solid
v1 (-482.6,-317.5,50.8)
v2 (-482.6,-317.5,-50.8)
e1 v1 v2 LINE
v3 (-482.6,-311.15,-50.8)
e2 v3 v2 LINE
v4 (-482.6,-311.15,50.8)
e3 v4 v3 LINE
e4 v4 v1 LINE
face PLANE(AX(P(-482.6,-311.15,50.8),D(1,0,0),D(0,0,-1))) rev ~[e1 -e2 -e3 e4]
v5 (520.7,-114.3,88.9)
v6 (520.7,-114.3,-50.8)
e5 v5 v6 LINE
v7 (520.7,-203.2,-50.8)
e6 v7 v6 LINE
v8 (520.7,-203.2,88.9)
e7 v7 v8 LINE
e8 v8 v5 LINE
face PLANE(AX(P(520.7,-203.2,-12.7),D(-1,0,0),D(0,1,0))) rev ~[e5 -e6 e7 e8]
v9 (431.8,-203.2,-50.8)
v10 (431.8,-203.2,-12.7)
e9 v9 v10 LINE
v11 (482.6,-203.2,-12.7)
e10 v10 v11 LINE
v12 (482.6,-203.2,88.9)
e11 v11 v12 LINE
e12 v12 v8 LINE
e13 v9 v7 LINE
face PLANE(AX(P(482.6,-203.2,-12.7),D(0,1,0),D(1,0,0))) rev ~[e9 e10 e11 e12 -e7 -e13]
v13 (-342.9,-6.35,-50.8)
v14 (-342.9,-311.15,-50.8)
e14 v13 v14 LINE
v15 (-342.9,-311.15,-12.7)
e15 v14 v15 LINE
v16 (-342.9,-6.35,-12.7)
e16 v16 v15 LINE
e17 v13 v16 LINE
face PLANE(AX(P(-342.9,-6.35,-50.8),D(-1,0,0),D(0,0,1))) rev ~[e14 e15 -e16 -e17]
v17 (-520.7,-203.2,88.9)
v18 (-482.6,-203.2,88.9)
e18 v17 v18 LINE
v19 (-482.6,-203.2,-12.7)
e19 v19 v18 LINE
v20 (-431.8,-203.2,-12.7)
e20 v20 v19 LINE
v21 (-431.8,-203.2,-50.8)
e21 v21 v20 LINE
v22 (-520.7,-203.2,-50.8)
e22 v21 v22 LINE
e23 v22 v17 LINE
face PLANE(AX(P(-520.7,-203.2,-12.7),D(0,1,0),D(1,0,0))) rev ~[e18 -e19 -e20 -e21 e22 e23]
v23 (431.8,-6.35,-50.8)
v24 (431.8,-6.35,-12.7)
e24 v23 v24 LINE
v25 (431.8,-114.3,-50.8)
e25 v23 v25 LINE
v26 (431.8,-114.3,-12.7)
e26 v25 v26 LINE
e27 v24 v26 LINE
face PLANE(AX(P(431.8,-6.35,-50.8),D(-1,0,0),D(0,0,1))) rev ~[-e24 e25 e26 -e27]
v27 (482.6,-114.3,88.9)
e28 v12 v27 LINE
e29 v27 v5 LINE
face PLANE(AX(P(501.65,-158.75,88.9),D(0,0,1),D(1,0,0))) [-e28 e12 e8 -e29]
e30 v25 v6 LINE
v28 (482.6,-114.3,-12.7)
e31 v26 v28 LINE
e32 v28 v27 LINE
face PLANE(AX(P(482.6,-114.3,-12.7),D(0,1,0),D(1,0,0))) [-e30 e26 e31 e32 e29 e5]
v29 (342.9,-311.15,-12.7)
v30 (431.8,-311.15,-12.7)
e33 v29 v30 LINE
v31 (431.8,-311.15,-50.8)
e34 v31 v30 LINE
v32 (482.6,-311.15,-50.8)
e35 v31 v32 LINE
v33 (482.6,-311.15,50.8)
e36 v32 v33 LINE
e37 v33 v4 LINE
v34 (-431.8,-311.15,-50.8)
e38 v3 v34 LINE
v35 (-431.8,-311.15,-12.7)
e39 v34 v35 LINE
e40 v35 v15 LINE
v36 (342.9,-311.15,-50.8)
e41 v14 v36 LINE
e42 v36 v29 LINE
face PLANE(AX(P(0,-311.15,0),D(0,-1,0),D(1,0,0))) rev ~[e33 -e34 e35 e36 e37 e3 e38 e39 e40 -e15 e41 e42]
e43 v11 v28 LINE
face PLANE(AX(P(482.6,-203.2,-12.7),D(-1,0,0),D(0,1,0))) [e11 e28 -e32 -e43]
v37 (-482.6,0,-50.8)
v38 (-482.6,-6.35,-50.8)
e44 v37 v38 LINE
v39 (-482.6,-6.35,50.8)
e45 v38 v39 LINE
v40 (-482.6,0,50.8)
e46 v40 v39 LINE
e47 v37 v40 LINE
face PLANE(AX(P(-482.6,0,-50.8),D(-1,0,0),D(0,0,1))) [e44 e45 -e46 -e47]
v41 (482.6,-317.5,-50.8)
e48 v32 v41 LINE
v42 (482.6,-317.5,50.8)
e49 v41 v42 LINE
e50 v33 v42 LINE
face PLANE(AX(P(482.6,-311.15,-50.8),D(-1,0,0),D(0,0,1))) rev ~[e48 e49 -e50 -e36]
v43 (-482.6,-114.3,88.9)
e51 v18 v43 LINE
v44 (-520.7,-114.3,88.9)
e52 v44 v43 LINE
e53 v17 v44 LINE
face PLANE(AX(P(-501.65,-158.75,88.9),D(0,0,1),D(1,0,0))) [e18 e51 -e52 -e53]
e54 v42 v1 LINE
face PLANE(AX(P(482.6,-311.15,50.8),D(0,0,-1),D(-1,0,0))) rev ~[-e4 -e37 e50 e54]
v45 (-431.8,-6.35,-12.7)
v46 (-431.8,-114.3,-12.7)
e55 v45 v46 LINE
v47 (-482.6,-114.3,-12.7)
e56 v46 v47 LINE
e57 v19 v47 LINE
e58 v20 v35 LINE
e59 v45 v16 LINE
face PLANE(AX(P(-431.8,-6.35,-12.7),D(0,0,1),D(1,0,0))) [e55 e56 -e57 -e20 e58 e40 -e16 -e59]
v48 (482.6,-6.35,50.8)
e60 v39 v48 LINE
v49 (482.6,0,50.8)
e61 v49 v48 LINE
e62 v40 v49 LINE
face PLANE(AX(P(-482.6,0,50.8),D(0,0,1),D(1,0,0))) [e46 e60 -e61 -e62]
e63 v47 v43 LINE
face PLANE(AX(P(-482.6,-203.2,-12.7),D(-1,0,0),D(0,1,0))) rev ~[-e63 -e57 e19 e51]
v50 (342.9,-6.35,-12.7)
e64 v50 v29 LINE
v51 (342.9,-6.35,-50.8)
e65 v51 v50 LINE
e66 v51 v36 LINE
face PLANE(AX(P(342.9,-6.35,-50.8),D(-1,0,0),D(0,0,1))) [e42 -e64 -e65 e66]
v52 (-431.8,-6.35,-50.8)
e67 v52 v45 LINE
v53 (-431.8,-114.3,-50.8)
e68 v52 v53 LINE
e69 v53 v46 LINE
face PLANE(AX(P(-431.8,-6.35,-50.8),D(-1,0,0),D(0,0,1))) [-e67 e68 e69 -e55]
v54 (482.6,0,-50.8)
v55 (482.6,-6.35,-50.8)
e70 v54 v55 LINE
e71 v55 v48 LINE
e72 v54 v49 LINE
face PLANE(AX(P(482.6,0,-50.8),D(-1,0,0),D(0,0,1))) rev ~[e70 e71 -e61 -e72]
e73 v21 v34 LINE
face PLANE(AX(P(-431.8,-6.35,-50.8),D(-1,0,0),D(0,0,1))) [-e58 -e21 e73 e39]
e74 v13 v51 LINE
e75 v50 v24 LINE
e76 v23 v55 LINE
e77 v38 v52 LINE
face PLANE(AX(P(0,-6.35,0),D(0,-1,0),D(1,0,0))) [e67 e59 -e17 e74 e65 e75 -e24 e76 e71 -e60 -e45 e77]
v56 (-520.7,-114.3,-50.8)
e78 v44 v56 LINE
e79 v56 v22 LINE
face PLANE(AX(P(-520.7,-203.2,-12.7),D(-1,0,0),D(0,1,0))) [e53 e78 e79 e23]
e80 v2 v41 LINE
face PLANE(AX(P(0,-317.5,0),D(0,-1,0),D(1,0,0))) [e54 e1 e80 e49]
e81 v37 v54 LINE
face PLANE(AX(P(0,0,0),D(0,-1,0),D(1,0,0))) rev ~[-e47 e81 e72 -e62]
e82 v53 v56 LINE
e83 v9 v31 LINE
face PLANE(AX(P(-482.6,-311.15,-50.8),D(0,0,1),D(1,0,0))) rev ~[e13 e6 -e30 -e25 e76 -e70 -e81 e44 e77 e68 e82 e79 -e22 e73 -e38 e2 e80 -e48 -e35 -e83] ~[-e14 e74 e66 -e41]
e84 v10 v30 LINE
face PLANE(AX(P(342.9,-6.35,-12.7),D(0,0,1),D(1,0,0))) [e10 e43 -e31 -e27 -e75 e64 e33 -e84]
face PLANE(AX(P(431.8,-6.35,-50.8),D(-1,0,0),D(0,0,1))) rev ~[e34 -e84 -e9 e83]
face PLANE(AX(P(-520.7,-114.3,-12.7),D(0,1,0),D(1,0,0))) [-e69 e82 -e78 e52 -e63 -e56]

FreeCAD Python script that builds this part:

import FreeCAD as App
import Part
import Sketcher

V = App.Vector
Q = App.Units.Quantity

doc = App.newDocument("Part")
body = doc.addObject("PartDesign::Body", "Body")

# Sketch on XZ plane
sketch1 = body.newObject("Sketcher::SketchObject", "Sketch")
sketch1.AttachmentSupport = (doc.getObject("XZ_Plane"), [""])
sketch1.MapMode = "FlatFace"
sketch1.addGeometry([
    Part.LineSegment(V(-482.6, 50.8, 0), V(-482.6, -50.8, 0)),
    Part.LineSegment(V(-482.6, -50.8, 0), V(482.6, -50.8, 0)),
    Part.LineSegment(V(482.6, -50.8, 0), V(482.6, 50.8, 0)),
    Part.LineSegment(V(482.6, 50.8, 0), V(-482.6, 50.8, 0)),
], False)
sketch1.addConstraint([
    Sketcher.Constraint("Coincident", 0, 2, 1, 1),
    Sketcher.Constraint("Coincident", 1, 2, 2, 1),
    Sketcher.Constraint("Coincident", 2, 2, 3, 1),
    Sketcher.Constraint("Coincident", 3, 2, 0, 1),
    Sketcher.Constraint("Vertical", 0),
    Sketcher.Constraint("Horizontal", 1),
    Sketcher.Constraint("Vertical", 2),
    Sketcher.Constraint("Horizontal", 3),
    Sketcher.Constraint("Symmetric", 0, 2, 2, 2, -1, 1),
    Sketcher.Constraint("DistanceX", 1, 1, 1, 2, Q("38 in")),
    Sketcher.Constraint("DistanceY", 0, 2, 0, 1, Q("4 in")),
])
pad1 = body.newObject("PartDesign::Pad", "Pad")
pad1.Profile = sketch1
pad1.Length = Q("0.25 in")

# Sketch on XZ plane
sketch2 = body.newObject("Sketcher::SketchObject", "Sketch001")
sketch2.AttachmentSupport = (doc.getObject("XZ_Plane"), [""])
sketch2.MapMode = "FlatFace"
sketch2.AttachmentOffset = App.Placement(V(0, 0, 0.25 * 25.4), App.Rotation())
sketch2.addGeometry([
    Part.LineSegment(V(-431.8, -12.7, 0), V(-431.8, -50.8, 0)),  # 0
    Part.LineSegment(V(-431.8, -50.8, 0), V(-342.9, -50.8, 0)),  # 1
    Part.LineSegment(V(-342.9, -50.8, 0), V(-342.9, -12.7, 0)),  # 2
    Part.LineSegment(V(-342.9, -12.7, 0), V(-431.8, -12.7, 0)),  # 3
    Part.LineSegment(V(342.9, -12.7, 0), V(342.9, -50.8, 0)),  # 4
    Part.LineSegment(V(342.9, -50.8, 0), V(431.8, -50.8, 0)),  # 5
    Part.LineSegment(V(431.8, -50.8, 0), V(431.8, -12.7, 0)),  # 6
    Part.LineSegment(V(431.8, -12.7, 0), V(342.9, -12.7, 0)),  # 7
], False)
sketch2.addConstraint([
    Sketcher.Constraint("Coincident", 0, 2, 1, 1),
    Sketcher.Constraint("Coincident", 1, 2, 2, 1),
    Sketcher.Constraint("Coincident", 2, 2, 3, 1),
    Sketcher.Constraint("Coincident", 3, 2, 0, 1),
    Sketcher.Constraint("Coincident", 4, 2, 5, 1),
    Sketcher.Constraint("Coincident", 5, 2, 6, 1),
    Sketcher.Constraint("Coincident", 6, 2, 7, 1),
    Sketcher.Constraint("Coincident", 7, 2, 4, 1),
    Sketcher.Constraint("Vertical", 0),
    Sketcher.Constraint("Horizontal", 1),
    Sketcher.Constraint("Vertical", 2),
    Sketcher.Constraint("Horizontal", 3),
    Sketcher.Constraint("Vertical", 4),
    Sketcher.Constraint("Horizontal", 5),
    Sketcher.Constraint("Vertical", 6),
    Sketcher.Constraint("Horizontal", 7),
    Sketcher.Constraint("Symmetric", 1, 2, 4, 2, -2),
    Sketcher.Constraint("Symmetric", 3, 2, 6, 2, -2),
    Sketcher.Constraint("DistanceX", 1, 1, 1, 2, Q("3.5 in")),
    Sketcher.Constraint("DistanceY", 0, 2, 0, 1, Q("1.5 in")),
    Sketcher.Constraint("DistanceX", 0, 2, -1, 1, Q("17 in")),
    Sketcher.Constraint("DistanceY", 0, 2, -1, 1, Q("2 in")),
])
pad2 = body.newObject("PartDesign::Pad", "Pad001")
pad2.Profile = sketch2
pad2.Length = Q("12 in")

# Sketch on YZ plane
sketch3 = body.newObject("Sketcher::SketchObject", "Sketch002")
sketch3.AttachmentSupport = (doc.getObject("YZ_Plane"), [""])
sketch3.MapMode = "FlatFace"
sketch3.AttachmentOffset = App.Placement(V(0, 0, -17 * 25.4), App.Rotation())
sketch3.addGeometry([
    Part.LineSegment(V(-114.3, -12.7, 0), V(-114.3, -50.8, 0)),
    Part.LineSegment(V(-114.3, -50.8, 0), V(-203.2, -50.8, 0)),
    Part.LineSegment(V(-203.2, -50.8, 0), V(-203.2, -12.7, 0)),
    Part.LineSegment(V(-203.2, -12.7, 0), V(-114.3, -12.7, 0)),
], False)
sketch3.addConstraint([
    Sketcher.Constraint("Coincident", 0, 2, 1, 1),
    Sketcher.Constraint("Coincident", 1, 2, 2, 1),
    Sketcher.Constraint("Coincident", 2, 2, 3, 1),
    Sketcher.Constraint("Coincident", 3, 2, 0, 1),
    Sketcher.Constraint("Vertical", 0),
    Sketcher.Constraint("Horizontal", 1),
    Sketcher.Constraint("Vertical", 2),
    Sketcher.Constraint("Horizontal", 3),
    Sketcher.Constraint("DistanceX", 1, 2, 1, 1, Q("3.5 in")),
    Sketcher.Constraint("DistanceY", 0, 2, 0, 1, Q("1.5 in")),
    Sketcher.Constraint("DistanceY", 0, 2, -1, 1, Q("2 in")),
    Sketcher.Constraint("DistanceX", 1, 2, -1, 1, Q("8 in")),
])
pad3 = body.newObject("PartDesign::Pad", "Pad002")
pad3.Profile = sketch3
pad3.Length = Q("3.5 in")
pad3.Reversed = True

# Sketch on XY plane
sketch4 = body.newObject("Sketcher::SketchObject", "Sketch003")
sketch4.AttachmentSupport = (doc.getObject("XY_Plane"), [""])
sketch4.MapMode = "FlatFace"
sketch4.AttachmentOffset = App.Placement(V(0, 0, -0.5 * 25.4), App.Rotation())
sketch4.addGeometry([
    Part.LineSegment(V(-520.7, -114.3, 0), V(-520.7, -203.2, 0)),
    Part.LineSegment(V(-520.7, -203.2, 0), V(-482.6, -203.2, 0)),
    Part.LineSegment(V(-482.6, -203.2, 0), V(-482.6, -114.3, 0)),
    Part.LineSegment(V(-482.6, -114.3, 0), V(-520.7, -114.3, 0)),
], False)
sketch4.addConstraint([
    Sketcher.Constraint("Coincident", 0, 2, 1, 1),
    Sketcher.Constraint("Coincident", 1, 2, 2, 1),
    Sketcher.Constraint("Coincident", 2, 2, 3, 1),
    Sketcher.Constraint("Coincident", 3, 2, 0, 1),
    Sketcher.Constraint("Vertical", 0),
    Sketcher.Constraint("Horizontal", 1),
    Sketcher.Constraint("Vertical", 2),
    Sketcher.Constraint("Horizontal", 3),
    Sketcher.Constraint("DistanceX", 1, 1, 1, 2, Q("1.5 in")),
    Sketcher.Constraint("DistanceY", 0, 2, 0, 1, Q("3.5 in")),
    Sketcher.Constraint("DistanceY", 0, 2, -1, 1, Q("8 in")),
    Sketcher.Constraint("DistanceX", 1, 2, -1, 1, Q("19 in")),
])
pad4 = body.newObject("PartDesign::Pad", "Pad003")
pad4.Profile = sketch4
pad4.Length = Q("4 in")

# Sketch on YZ plane
sketch5 = body.newObject("Sketcher::SketchObject", "Sketch004")
sketch5.AttachmentSupport = (doc.getObject("YZ_Plane"), [""])
sketch5.MapMode = "FlatFace"
sketch5.AttachmentOffset = App.Placement(V(0, 0, 17 * 25.4), App.Rotation())
sketch5.addGeometry([
    Part.LineSegment(V(-203.2, -12.7, 0), V(-203.2, -50.8, 0)),
    Part.LineSegment(V(-203.2, -50.8, 0), V(-114.3, -50.8, 0)),
    Part.LineSegment(V(-114.3, -50.8, 0), V(-114.3, -12.7, 0)),
    Part.LineSegment(V(-114.3, -12.7, 0), V(-203.2, -12.7, 0)),
], False)
sketch5.addConstraint([
    Sketcher.Constraint("Coincident", 0, 2, 1, 1),
    Sketcher.Constraint("Coincident", 1, 2, 2, 1),
    Sketcher.Constraint("Coincident", 2, 2, 3, 1),
    Sketcher.Constraint("Coincident", 3, 2, 0, 1),
    Sketcher.Constraint("Vertical", 0),
    Sketcher.Constraint("Horizontal", 1),
    Sketcher.Constraint("Vertical", 2),
    Sketcher.Constraint("Horizontal", 3),
    Sketcher.Constraint("DistanceX", 1, 1, 1, 2, Q("3.5 in")),
    Sketcher.Constraint("DistanceY", 0, 2, 0, 1, Q("1.5 in")),
    Sketcher.Constraint("DistanceX", 0, 2, -1, 1, Q("8 in")),
    Sketcher.Constraint("DistanceY", 0, 2, -1, 1, Q("2 in")),
])
pad5 = body.newObject("PartDesign::Pad", "Pad004")
pad5.Profile = sketch5
pad5.Length = Q("3.5 in")

# Sketch on XY plane
sketch6 = body.newObject("Sketcher::SketchObject", "Sketch005")
sketch6.AttachmentSupport = (doc.getObject("XY_Plane"), [""])
sketch6.MapMode = "FlatFace"
sketch6.AttachmentOffset = App.Placement(V(0, 0, -0.5 * 25.4), App.Rotation())
sketch6.addGeometry([
    Part.LineSegment(V(482.6, -114.3, 0), V(482.6, -203.2, 0)),
    Part.LineSegment(V(482.6, -203.2, 0), V(520.7, -203.2, 0)),
    Part.LineSegment(V(520.7, -203.2, 0), V(520.7, -114.3, 0)),
    Part.LineSegment(V(520.7, -114.3, 0), V(482.6, -114.3, 0)),
], False)
sketch6.addConstraint([
    Sketcher.Constraint("Coincident", 0, 2, 1, 1),
    Sketcher.Constraint("Coincident", 1, 2, 2, 1),
    Sketcher.Constraint("Coincident", 2, 2, 3, 1),
    Sketcher.Constraint("Coincident", 3, 2, 0, 1),
    Sketcher.Constraint("Vertical", 0),
    Sketcher.Constraint("Horizontal", 1),
    Sketcher.Constraint("Vertical", 2),
    Sketcher.Constraint("Horizontal", 3),
    Sketcher.Constraint("DistanceX", 1, 1, 1, 2, Q("1.5 in")),
    Sketcher.Constraint("DistanceY", 0, 2, 0, 1, Q("3.5 in")),
    Sketcher.Constraint("DistanceX", -1, 1, 0, 2, Q("19 in")),
    Sketcher.Constraint("DistanceY", 0, 2, -1, 1, Q("8 in")),
])
pad6 = body.newObject("PartDesign::Pad", "Pad005")
pad6.Profile = sketch6
pad6.Length = Q("4 in")

# Sketch on XZ plane
sketch7 = body.newObject("Sketcher::SketchObject", "Sketch006")
sketch7.AttachmentSupport = (doc.getObject("XZ_Plane"), [""])
sketch7.MapMode = "FlatFace"
sketch7.AttachmentOffset = App.Placement(V(0, 0, 12.25 * 25.4), App.Rotation())
sketch7.addGeometry([
    Part.LineSegment(V(-482.6, -50.8, 0), V(482.6, -50.8, 0)),
    Part.LineSegment(V(482.6, -50.8, 0), V(482.6, 50.8, 0)),
    Part.LineSegment(V(482.6, 50.8, 0), V(-482.6, 50.8, 0)),
    Part.LineSegment(V(-482.6, 50.8, 0), V(-482.6, -50.8, 0)),
], False)
sketch7.addConstraint([
    Sketcher.Constraint("Coincident", 0, 2, 1, 1),
    Sketcher.Constraint("Coincident", 1, 2, 2, 1),
    Sketcher.Constraint("Coincident", 2, 2, 3, 1),
    Sketcher.Constraint("Coincident", 3, 2, 0, 1),
    Sketcher.Constraint("Horizontal", 0),
    Sketcher.Constraint("Vertical", 1),
    Sketcher.Constraint("Horizontal", 2),
    Sketcher.Constraint("Vertical", 3),
    Sketcher.Constraint("Symmetric", 0, 2, 2, 2, -1, 1),
    Sketcher.Constraint("DistanceX", 0, 1, 0, 2, Q("38 in")),
    Sketcher.Constraint("DistanceY", 1, 1, 1, 2, Q("4 in")),
])
pad7 = body.newObject("PartDesign::Pad", "Pad006")
pad7.Profile = sketch7
pad7.Length = Q("0.25 in")

doc.recompute()
